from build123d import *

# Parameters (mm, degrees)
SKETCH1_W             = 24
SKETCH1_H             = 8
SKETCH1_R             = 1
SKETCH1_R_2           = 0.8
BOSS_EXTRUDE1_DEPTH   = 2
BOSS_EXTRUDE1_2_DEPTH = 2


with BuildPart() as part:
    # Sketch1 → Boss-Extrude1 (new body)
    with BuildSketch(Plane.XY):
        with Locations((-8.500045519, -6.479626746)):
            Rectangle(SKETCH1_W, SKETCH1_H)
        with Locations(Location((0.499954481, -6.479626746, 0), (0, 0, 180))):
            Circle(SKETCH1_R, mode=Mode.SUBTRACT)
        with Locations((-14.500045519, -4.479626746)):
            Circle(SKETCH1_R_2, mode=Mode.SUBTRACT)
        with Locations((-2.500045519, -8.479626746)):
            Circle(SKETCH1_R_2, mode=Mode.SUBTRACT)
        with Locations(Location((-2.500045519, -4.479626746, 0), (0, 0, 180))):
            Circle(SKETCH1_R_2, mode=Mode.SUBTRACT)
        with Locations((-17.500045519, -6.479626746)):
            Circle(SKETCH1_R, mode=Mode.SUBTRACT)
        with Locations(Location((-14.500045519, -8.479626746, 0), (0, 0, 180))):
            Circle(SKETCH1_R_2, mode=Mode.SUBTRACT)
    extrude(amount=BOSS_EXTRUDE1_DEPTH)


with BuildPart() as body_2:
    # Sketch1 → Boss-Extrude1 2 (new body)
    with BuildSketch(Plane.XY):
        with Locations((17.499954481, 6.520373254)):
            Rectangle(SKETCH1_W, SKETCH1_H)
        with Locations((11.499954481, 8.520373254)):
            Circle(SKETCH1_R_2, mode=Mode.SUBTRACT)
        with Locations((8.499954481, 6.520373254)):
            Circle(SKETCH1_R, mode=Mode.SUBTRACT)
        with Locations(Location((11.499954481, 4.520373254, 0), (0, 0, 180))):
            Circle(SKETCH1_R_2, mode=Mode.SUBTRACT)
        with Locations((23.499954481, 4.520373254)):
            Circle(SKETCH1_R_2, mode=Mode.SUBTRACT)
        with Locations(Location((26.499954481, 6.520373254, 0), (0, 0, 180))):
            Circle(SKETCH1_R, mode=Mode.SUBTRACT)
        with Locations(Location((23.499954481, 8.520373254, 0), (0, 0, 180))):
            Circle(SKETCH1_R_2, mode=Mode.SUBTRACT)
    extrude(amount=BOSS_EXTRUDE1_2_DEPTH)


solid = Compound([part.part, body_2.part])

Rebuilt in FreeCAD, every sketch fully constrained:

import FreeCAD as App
import Part
import Sketcher

V = App.Vector

doc = App.newDocument("Part")
body = doc.addObject("PartDesign::Body", "Body")

sketch1 = body.newObject("Sketcher::SketchObject", "Sketch")
sketch1.AttachmentSupport = (doc.getObject("XY_Plane"), [""])
sketch1.MapMode = "FlatFace"
sketch1.addGeometry([
    Part.LineSegment(V(-20.5, -2.5, 0), V(-20.5, -10.5, 0)),
    Part.LineSegment(V(-20.5, -10.5, 0), V(3.5, -10.5, 0)),
    Part.LineSegment(V(3.5, -10.5, 0), V(3.5, -2.5, 0)),
    Part.LineSegment(V(3.5, -2.5, 0), V(-20.5, -2.5, 0)),
    Part.Circle(V(-14.5, -8.5, 0), V(0, 0, 1), 0.8),
    Part.Circle(V(-17.5, -6.5, 0), V(0, 0, 1), 1),
    Part.Circle(V(-2.5, -8.5, 0), V(0, 0, 1), 0.8),
    Part.Circle(V(0.5, -6.5, 0), V(0, 0, 1), 1),
    Part.Circle(V(-14.5, -4.5, 0), V(0, 0, 1), 0.8),
    Part.Circle(V(-2.5, -4.5, 0), V(0, 0, 1), 0.8),
], False)
sketch1.addConstraint([
    Sketcher.Constraint("Coincident", 0, 2, 1, 1),
    Sketcher.Constraint("Coincident", 1, 2, 2, 1),
    Sketcher.Constraint("Coincident", 2, 2, 3, 1),
    Sketcher.Constraint("Coincident", 3, 2, 0, 1),
    Sketcher.Constraint("Vertical", 0),
    Sketcher.Constraint("Horizontal", 1),
    Sketcher.Constraint("Vertical", 2),
    Sketcher.Constraint("Horizontal", 3),
    Sketcher.Constraint("Equal", 4, 6),
    Sketcher.Constraint("Equal", 5, 7),
    Sketcher.Constraint("Equal", 6, 8),
    Sketcher.Constraint("Equal", 8, 9),
    Sketcher.Constraint("Horizontal", 4, 3, 6, 3),
    Sketcher.Constraint("Horizontal", 5, 3, 7, 3),
    Sketcher.Constraint("Horizontal", 8, 3, 9, 3),
    Sketcher.Constraint("Vertical", 4, 3, 8, 3),
    Sketcher.Constraint("Vertical", 6, 3, 9, 3),
    Sketcher.Constraint("Diameter", 5, 2.0),
    Sketcher.Constraint("Diameter", 4, 1.6),
    Sketcher.Constraint("DistanceX", 1, 1, 1, 2, 24.0),
    Sketcher.Constraint("DistanceY", 0, 2, 0, 1, 8.0),
    Sketcher.Constraint("DistanceX", 5, 3, 4, 3, 3.0),
    Sketcher.Constraint("DistanceY", 4, 3, 5, 3, 2.0),
    Sketcher.Constraint("DistanceX", 4, 3, 6, 3, 12.0),
    Sketcher.Constraint("DistanceX", 6, 3, 7, 3, 3.0),
    Sketcher.Constraint("DistanceY", 5, 3, 8, 3, 2.0),
    Sketcher.Constraint("DistanceX", 0, 2, 5, 3, 3.0),
    Sketcher.Constraint("DistanceY", 0, 2, 5, 3, 4.0),
    Sketcher.Constraint("DistanceX", 4, 3, -1, 1, 14.500046),
    Sketcher.Constraint("DistanceY", 4, 3, -1, 1, 8.479627),
])
pad1 = body.newObject("PartDesign::Pad", "Pad")
pad1.Profile = sketch1
pad1.Length = 2
body2 = doc.addObject("PartDesign::Body", "Body001")

sketch2 = body2.newObject("Sketcher::SketchObject", "Sketch001")
sketch2.AttachmentSupport = (doc.getObject("XY_Plane001"), [""])
sketch2.MapMode = "FlatFace"
sketch2.addGeometry([
    Part.LineSegment(V(5.5, 10.5, 0), V(5.5, 2.5, 0)),
    Part.LineSegment(V(5.5, 2.5, 0), V(29.5, 2.5, 0)),
    Part.LineSegment(V(29.5, 2.5, 0), V(29.5, 10.5, 0)),
    Part.LineSegment(V(29.5, 10.5, 0), V(5.5, 10.5, 0)),
    Part.Circle(V(11.5, 4.5, 0), V(0, 0, 1), 0.8),
    Part.Circle(V(8.5, 6.5, 0), V(0, 0, 1), 1),
    Part.Circle(V(23.5, 4.5, 0), V(0, 0, 1), 0.8),
    Part.Circle(V(26.5, 6.5, 0), V(0, 0, 1), 1),
    Part.Circle(V(11.5, 8.5, 0), V(0, 0, 1), 0.8),
    Part.Circle(V(23.5, 8.5, 0), V(0, 0, 1), 0.8),
], False)
sketch2.addConstraint([
    Sketcher.Constraint("Coincident", 0, 2, 1, 1),
    Sketcher.Constraint("Coincident", 1, 2, 2, 1),
    Sketcher.Constraint("Coincident", 2, 2, 3, 1),
    Sketcher.Constraint("Coincident", 3, 2, 0, 1),
    Sketcher.Constraint("Vertical", 0),
    Sketcher.Constraint("Horizontal", 1),
    Sketcher.Constraint("Vertical", 2),
    Sketcher.Constraint("Horizontal", 3),
    Sketcher.Constraint("Equal", 4, 6),
    Sketcher.Constraint("Equal", 5, 7),
    Sketcher.Constraint("Equal", 6, 8),
    Sketcher.Constraint("Equal", 8, 9),
    Sketcher.Constraint("Horizontal", 4, 3, 6, 3),
    Sketcher.Constraint("Horizontal", 5, 3, 7, 3),
    Sketcher.Constraint("Horizontal", 8, 3, 9, 3),
    Sketcher.Constraint("Vertical", 4, 3, 8, 3),
    Sketcher.Constraint("Vertical", 6, 3, 9, 3),
    Sketcher.Constraint("Diameter", 5, 2.0),
    Sketcher.Constraint("Diameter", 4, 1.6),
    Sketcher.Constraint("DistanceX", 1, 1, 1, 2, 24.0),
    Sketcher.Constraint("DistanceY", 0, 2, 0, 1, 8.0),
    Sketcher.Constraint("DistanceX", 5, 3, 4, 3, 3.0),
    Sketcher.Constraint("DistanceY", 4, 3, 5, 3, 2.0),
    Sketcher.Constraint("DistanceX", 4, 3, 6, 3, 12.0),
    Sketcher.Constraint("DistanceX", 6, 3, 7, 3, 3.0),
    Sketcher.Constraint("DistanceY", 5, 3, 8, 3, 2.0),
    Sketcher.Constraint("DistanceX", 0, 2, 5, 3, 3.0),
    Sketcher.Constraint("DistanceY", 0, 2, 5, 3, 4.0),
    Sketcher.Constraint("DistanceX", -1, 1, 4, 3, 11.499954),
    Sketcher.Constraint("DistanceY", -1, 1, 4, 3, 4.520373),
])
pad2 = body2.newObject("PartDesign::Pad", "Pad001")
pad2.Profile = sketch2
pad2.Length = 2

doc.recompute()
